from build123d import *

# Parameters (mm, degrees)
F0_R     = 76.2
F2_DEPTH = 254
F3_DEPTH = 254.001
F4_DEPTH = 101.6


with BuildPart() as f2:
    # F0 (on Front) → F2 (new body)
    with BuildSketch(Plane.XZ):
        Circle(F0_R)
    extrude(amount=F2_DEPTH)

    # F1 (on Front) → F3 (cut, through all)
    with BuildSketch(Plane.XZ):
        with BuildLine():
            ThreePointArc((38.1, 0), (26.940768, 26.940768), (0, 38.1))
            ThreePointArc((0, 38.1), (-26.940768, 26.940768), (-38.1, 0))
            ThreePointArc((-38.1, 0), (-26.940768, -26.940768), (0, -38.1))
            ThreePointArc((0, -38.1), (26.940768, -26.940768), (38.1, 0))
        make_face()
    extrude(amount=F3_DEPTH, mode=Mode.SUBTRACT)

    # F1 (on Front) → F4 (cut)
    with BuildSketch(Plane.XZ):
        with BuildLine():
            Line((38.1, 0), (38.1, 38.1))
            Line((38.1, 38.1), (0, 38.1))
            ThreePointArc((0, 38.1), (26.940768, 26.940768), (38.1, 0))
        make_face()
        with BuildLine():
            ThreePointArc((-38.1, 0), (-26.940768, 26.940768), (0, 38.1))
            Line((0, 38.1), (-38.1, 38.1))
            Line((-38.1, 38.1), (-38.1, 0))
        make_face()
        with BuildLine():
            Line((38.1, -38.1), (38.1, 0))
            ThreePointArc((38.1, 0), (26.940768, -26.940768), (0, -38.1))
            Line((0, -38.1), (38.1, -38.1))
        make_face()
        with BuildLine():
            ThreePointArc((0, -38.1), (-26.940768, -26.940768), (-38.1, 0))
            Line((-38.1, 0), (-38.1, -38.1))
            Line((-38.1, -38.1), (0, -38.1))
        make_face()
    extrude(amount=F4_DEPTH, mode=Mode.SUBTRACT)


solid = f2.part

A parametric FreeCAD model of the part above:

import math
import FreeCAD as App
import Part
import Sketcher

V = App.Vector
Q = App.Units.Quantity

doc = App.newDocument("Part")
params = doc.addObject("Spreadsheet::Sheet", "Params")
for row, (alias, value) in enumerate([
    ("sketch1_diameter", "6 in"),
    ("pad1_length", "10 in"),
    ("sketch2_radius", "1.5 in"),
    ("sketch3_radius", "1.5 in"),
    ("pocket2_length", "4 in"),
], start=1):
    params.set(f"A{row}", alias)
    params.set(f"B{row}", "=" + value)
    params.setAlias(f"B{row}", alias)

body = doc.addObject("PartDesign::Body", "Body")

# Sketch on XZ plane
sketch1 = body.newObject("Sketcher::SketchObject", "Sketch")
sketch1.AttachmentSupport = (doc.getObject("XZ_Plane"), [""])
sketch1.MapMode = "FlatFace"
sketch1.addGeometry(Part.Circle(V(0, 0, 0), V(0, 0, 1), 76), False)
sketch1.addConstraint([
    Sketcher.Constraint("Coincident", 0, 3, -1, 1),
    Sketcher.Constraint("Diameter", 0, Q("6 in")),
])
sketch1.setExpression("Constraints[1]", "Params.sketch1_diameter")
pad1 = body.newObject("PartDesign::Pad", "Pad")
pad1.Profile = sketch1
pad1.setExpression("Length", "Params.pad1_length")

# Sketch on XZ plane
sketch2 = body.newObject("Sketcher::SketchObject", "Sketch001")
sketch2.AttachmentSupport = (doc.getObject("XZ_Plane"), [""])
sketch2.MapMode = "FlatFace"
sketch2.addGeometry([
    Part.ArcOfCircle(Part.Circle(V(0, 0, 0), V(0, 0, 1), 38), math.radians(0), math.radians(90)),
    Part.ArcOfCircle(Part.Circle(V(0, 0, 0), V(0, 0, 1), 38), math.radians(90), math.radians(180)),
    Part.ArcOfCircle(Part.Circle(V(0, 0, 0), V(0, 0, 1), 38), math.radians(-180), math.radians(-90)),
    Part.ArcOfCircle(Part.Circle(V(0, 0, 0), V(0, 0, 1), 38), math.radians(-90), math.radians(0)),
], False)
sketch2.addConstraint([
    Sketcher.Constraint("Tangent", 0, 2, 1, 1),
    Sketcher.Constraint("Tangent", 1, 2, 2, 1),
    Sketcher.Constraint("Tangent", 2, 2, 3, 1),
    Sketcher.Constraint("Tangent", 3, 2, 0, 1),
    Sketcher.Constraint("Coincident", 0, 3, -1, 1),
    Sketcher.Constraint("Equal", 0, 1),
    Sketcher.Constraint("PointOnObject", 0, 2, -2),
    Sketcher.Constraint("PointOnObject", 1, 2, -1),
    Sketcher.Constraint("PointOnObject", 2, 2, -2),
    Sketcher.Constraint("PointOnObject", 3, 2, -1),
    Sketcher.Constraint("Radius", 0, Q("1.5 in")),
])
sketch2.setExpression("Constraints[10]", "Params.sketch2_radius")
pocket1 = body.newObject("PartDesign::Pocket", "Pocket")
pocket1.Profile = sketch2
pocket1.Type = "ThroughAll"
pocket1.Reversed = True

# Sketch on XZ plane
sketch3 = body.newObject("Sketcher::SketchObject", "Sketch002")
sketch3.AttachmentSupport = (doc.getObject("XZ_Plane"), [""])
sketch3.MapMode = "FlatFace"
sketch3.addGeometry([
    Part.LineSegment(V(38, 0, 0), V(38, 38, 0)),  # 0
    Part.LineSegment(V(38, 38, 0), V(0, 38, 0)),  # 1
    Part.ArcOfCircle(Part.Circle(V(0, 0, 0), V(0, 0, 1), 38), math.radians(0), math.radians(90)),  # 2
    Part.ArcOfCircle(Part.Circle(V(0, 0, 0), V(0, 0, 1), 38), math.radians(90), math.radians(180)),  # 3
    Part.LineSegment(V(0, 38, 0), V(-38, 38, 0)),  # 4
    Part.LineSegment(V(-38, 38, 0), V(-38, 0, 0)),  # 5
    Part.LineSegment(V(38, -38, 0), V(38, 0, 0)),  # 6
    Part.ArcOfCircle(Part.Circle(V(0, 0, 0), V(0, 0, 1), 38), math.radians(-90), math.radians(0)),  # 7
    Part.LineSegment(V(0, -38, 0), V(38, -38, 0)),  # 8
    Part.ArcOfCircle(Part.Circle(V(0, 0, 0), V(0, 0, 1), 38), math.radians(-180), math.radians(-90)),  # 9
    Part.LineSegment(V(-38, 0, 0), V(-38, -38, 0)),  # 10
    Part.LineSegment(V(-38, -38, 0), V(0, -38, 0)),  # 11
], False)
sketch3.addConstraint([
    Sketcher.Constraint("Coincident", 0, 2, 1, 1),
    Sketcher.Constraint("Tangent", 1, 2, 2, 2),
    Sketcher.Constraint("Tangent", 2, 1, 0, 1),
    Sketcher.Constraint("Tangent", 3, 1, 4, 1),
    Sketcher.Constraint("Coincident", 4, 2, 5, 1),
    Sketcher.Constraint("Tangent", 5, 2, 3, 2),
    Sketcher.Constraint("Tangent", 6, 2, 7, 2),
    Sketcher.Constraint("Tangent", 7, 1, 8, 1),
    Sketcher.Constraint("Coincident", 8, 2, 6, 1),
    Sketcher.Constraint("Tangent", 9, 1, 10, 1),
    Sketcher.Constraint("Coincident", 10, 2, 11, 1),
    Sketcher.Constraint("Tangent", 11, 2, 9, 2),
    Sketcher.Constraint("Vertical", 0),
    Sketcher.Constraint("Horizontal", 1),
    Sketcher.Constraint("Horizontal", 4),
    Sketcher.Constraint("Vertical", 5),
    Sketcher.Constraint("Vertical", 6),
    Sketcher.Constraint("Horizontal", 8),
    Sketcher.Constraint("Vertical", 10),
    Sketcher.Constraint("Horizontal", 11),
    Sketcher.Constraint("Coincident", 2, 3, -1, 1),
    Sketcher.Constraint("Coincident", 3, 3, -1, 1),
    Sketcher.Constraint("Coincident", 7, 3, -1, 1),
    Sketcher.Constraint("Coincident", 9, 3, -1, 1),
    Sketcher.Constraint("Equal", 2, 3),
    Sketcher.Constraint("Equal", 3, 7),
    Sketcher.Constraint("Equal", 7, 9),
    Sketcher.Constraint("Radius", 2, Q("1.5 in")),
])
sketch3.setExpression("Constraints[27]", "Params.sketch3_radius")
pocket2 = body.newObject("PartDesign::Pocket", "Pocket001")
pocket2.Profile = sketch3
pocket2.setExpression("Length", "Params.pocket2_length")
pocket2.Reversed = True

doc.recompute()
